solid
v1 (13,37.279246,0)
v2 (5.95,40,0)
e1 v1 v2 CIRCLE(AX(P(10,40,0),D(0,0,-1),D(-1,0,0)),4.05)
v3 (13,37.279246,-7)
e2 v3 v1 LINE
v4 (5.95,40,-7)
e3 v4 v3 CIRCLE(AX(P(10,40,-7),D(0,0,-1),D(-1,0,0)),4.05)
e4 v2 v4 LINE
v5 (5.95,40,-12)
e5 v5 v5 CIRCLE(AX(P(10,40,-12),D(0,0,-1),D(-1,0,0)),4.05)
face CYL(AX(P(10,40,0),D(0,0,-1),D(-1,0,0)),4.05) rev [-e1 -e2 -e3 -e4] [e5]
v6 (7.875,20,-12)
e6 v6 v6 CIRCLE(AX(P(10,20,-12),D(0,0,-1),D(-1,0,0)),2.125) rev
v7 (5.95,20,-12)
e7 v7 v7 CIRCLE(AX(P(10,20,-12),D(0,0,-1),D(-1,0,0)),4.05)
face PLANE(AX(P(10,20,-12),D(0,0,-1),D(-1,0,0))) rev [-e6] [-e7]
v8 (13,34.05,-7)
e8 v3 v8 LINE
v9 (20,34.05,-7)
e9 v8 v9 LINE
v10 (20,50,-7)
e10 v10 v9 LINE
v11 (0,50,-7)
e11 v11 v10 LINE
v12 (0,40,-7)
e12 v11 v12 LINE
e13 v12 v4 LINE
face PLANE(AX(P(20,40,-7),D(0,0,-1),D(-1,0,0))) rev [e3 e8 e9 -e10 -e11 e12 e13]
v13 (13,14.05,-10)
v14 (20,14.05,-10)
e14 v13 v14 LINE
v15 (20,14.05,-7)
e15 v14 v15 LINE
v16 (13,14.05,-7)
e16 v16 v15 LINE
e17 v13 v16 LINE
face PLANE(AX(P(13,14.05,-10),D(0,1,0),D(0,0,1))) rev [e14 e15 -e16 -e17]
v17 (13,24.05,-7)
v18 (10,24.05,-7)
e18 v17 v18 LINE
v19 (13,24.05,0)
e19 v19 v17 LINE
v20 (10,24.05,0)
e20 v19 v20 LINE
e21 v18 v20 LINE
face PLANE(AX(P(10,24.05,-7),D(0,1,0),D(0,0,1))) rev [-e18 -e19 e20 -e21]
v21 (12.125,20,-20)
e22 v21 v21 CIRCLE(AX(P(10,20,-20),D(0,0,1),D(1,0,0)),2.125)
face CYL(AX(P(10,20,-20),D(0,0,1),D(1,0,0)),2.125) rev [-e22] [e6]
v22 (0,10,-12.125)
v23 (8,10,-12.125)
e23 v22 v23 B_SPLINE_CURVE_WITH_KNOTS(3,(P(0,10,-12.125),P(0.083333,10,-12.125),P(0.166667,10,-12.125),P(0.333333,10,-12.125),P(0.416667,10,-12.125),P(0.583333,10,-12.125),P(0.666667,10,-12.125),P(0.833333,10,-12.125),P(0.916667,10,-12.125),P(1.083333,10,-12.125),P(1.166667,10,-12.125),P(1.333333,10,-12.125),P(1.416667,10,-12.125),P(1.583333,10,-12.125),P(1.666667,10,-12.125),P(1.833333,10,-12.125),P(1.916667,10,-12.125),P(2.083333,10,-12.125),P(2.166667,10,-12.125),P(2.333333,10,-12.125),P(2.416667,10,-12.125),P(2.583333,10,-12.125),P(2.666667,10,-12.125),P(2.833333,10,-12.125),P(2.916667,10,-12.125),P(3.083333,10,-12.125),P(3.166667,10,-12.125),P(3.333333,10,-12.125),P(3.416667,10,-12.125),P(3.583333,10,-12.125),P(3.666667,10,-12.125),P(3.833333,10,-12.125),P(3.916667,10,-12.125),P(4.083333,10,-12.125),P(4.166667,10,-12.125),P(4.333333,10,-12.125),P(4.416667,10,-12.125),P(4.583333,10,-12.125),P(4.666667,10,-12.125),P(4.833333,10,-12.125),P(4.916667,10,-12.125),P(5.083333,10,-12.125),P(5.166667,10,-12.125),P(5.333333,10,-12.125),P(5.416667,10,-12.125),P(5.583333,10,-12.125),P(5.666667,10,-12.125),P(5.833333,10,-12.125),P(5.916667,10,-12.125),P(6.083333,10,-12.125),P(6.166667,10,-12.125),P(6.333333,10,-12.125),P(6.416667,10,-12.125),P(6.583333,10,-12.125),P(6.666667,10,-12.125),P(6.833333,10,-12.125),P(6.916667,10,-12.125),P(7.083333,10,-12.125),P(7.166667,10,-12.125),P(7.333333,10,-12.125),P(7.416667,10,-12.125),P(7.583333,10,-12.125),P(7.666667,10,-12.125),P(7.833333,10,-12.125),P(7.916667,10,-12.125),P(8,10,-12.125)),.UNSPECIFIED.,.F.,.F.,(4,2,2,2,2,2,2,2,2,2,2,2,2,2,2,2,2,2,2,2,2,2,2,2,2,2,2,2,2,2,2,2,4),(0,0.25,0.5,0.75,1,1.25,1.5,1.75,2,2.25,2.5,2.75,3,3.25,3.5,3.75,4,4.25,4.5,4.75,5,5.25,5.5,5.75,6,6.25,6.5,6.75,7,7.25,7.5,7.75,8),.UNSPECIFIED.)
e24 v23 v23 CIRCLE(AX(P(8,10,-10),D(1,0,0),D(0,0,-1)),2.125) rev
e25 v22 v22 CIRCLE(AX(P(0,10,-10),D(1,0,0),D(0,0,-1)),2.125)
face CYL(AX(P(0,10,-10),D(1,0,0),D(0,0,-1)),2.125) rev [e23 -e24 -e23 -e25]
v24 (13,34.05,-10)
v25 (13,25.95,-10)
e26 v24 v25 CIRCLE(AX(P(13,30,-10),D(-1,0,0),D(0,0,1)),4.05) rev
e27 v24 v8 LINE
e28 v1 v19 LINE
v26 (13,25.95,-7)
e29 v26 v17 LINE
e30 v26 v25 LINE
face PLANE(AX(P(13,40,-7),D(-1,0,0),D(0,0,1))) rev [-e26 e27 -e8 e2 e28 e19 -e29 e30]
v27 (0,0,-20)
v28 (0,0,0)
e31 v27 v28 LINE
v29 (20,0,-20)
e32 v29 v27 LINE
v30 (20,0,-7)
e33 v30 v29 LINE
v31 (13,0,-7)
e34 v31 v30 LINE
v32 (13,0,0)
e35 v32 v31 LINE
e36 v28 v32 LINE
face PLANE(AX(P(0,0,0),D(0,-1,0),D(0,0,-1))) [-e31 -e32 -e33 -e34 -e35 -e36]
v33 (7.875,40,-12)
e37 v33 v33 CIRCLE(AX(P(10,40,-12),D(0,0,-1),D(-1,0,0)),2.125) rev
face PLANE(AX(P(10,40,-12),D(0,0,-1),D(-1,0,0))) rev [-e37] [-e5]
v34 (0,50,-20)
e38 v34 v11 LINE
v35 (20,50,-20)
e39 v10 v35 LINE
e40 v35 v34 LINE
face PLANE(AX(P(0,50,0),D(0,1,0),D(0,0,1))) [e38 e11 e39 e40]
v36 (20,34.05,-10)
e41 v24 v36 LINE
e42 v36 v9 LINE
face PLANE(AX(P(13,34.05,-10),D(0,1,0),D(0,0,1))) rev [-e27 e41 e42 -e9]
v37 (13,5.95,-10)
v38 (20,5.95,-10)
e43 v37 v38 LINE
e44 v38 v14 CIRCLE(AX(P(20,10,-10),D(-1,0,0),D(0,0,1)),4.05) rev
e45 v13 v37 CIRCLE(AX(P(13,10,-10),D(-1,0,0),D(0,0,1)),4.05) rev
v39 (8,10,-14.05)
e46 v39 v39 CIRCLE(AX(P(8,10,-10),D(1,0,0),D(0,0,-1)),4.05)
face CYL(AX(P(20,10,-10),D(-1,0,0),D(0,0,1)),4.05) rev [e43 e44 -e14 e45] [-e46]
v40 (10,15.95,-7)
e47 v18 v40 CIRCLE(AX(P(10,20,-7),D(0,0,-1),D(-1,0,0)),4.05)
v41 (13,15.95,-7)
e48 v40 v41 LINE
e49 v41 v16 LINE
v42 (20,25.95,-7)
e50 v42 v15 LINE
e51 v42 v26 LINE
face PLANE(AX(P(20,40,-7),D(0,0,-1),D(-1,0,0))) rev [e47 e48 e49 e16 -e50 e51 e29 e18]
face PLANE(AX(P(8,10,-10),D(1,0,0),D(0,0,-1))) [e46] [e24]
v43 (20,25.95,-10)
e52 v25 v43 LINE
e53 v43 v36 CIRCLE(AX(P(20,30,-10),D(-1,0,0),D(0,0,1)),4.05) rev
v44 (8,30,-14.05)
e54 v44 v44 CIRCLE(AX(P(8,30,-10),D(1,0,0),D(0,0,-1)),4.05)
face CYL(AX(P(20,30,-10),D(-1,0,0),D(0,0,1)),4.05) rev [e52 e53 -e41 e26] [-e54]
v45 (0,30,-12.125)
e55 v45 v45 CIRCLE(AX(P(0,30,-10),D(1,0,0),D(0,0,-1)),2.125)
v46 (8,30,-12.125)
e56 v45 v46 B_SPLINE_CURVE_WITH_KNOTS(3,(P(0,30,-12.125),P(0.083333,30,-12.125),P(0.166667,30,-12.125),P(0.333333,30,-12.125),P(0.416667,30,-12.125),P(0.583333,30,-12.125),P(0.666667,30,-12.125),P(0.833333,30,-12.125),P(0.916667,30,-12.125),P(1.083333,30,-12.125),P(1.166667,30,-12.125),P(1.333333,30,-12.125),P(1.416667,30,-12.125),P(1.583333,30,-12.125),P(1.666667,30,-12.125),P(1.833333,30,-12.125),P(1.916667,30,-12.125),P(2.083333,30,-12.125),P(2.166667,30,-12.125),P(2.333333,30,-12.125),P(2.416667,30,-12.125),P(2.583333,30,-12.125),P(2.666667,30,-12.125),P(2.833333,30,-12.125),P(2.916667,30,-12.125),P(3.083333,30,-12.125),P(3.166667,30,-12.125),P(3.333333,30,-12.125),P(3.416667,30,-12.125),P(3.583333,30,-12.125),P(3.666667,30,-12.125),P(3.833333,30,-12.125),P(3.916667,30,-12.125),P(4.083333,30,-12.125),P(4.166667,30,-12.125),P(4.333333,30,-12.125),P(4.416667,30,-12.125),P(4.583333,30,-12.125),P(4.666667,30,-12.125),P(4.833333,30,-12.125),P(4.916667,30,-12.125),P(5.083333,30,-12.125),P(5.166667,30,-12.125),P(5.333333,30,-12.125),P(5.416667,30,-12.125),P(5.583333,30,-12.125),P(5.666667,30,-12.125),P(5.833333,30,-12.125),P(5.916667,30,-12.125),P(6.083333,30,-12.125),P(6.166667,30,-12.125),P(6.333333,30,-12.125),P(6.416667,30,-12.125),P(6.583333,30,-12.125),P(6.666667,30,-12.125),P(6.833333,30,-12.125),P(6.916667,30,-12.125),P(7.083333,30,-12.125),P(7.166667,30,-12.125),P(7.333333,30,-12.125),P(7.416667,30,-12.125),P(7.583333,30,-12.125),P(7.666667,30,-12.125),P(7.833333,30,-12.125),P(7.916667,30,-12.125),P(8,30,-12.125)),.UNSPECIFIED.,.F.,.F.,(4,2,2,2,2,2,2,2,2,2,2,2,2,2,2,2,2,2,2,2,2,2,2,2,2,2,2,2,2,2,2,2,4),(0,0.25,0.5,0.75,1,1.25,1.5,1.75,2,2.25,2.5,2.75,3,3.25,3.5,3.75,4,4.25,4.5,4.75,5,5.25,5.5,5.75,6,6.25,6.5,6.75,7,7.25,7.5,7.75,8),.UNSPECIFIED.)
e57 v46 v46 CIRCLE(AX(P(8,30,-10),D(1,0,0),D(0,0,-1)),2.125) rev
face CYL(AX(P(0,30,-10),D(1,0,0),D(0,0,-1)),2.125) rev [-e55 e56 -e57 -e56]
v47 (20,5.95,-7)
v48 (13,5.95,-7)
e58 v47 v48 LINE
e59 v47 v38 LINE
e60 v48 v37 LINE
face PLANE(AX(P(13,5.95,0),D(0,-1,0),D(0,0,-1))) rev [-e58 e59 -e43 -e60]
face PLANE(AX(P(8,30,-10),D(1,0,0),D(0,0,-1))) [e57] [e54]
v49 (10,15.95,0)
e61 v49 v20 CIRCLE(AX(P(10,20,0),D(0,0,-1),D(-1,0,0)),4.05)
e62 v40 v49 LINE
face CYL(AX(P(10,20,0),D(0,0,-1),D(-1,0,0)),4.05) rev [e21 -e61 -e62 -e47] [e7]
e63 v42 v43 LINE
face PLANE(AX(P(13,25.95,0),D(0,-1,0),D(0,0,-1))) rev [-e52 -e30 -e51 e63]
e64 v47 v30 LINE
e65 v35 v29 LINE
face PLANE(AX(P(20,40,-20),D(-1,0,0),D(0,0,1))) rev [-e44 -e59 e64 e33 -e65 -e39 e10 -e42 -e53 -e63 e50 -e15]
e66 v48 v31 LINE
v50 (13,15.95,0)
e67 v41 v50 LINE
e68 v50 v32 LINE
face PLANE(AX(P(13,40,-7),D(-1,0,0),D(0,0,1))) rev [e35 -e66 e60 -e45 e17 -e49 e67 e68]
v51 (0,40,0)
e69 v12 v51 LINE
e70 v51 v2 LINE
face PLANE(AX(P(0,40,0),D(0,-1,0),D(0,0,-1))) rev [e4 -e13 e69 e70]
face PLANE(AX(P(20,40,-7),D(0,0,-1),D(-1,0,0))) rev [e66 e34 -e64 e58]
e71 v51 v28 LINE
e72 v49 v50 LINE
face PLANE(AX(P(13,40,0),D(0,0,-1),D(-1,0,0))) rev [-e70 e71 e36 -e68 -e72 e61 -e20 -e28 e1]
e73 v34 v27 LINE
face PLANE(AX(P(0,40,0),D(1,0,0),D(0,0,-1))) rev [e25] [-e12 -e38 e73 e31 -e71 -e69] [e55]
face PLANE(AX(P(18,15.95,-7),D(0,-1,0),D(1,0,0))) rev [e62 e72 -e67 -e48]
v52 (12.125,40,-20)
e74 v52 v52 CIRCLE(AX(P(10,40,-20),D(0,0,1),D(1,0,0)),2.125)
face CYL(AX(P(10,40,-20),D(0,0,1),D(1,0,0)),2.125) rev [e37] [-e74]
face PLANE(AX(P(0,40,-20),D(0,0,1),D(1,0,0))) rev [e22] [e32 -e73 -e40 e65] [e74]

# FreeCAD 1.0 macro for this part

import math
import FreeCAD as App
import Part
import Sketcher

V = App.Vector


def add_polygon(sketch, points):
    """Adds a closed chain of lines whose ends are joined by coincident constraints."""
    first, n = sketch.GeometryCount, len(points)
    for a, b in zip(points, points[1:] + points[:1]):
        sketch.addGeometry(Part.LineSegment(App.Vector(*a, 0), App.Vector(*b, 0)), False)
    for i in range(n):
        sketch.addConstraint(Sketcher.Constraint("Coincident", first + i, 2, first + (i + 1) % n, 1))

doc = App.newDocument("Part")
body = doc.addObject("PartDesign::Body", "Body")

sketch1 = body.newObject("Sketcher::SketchObject", "Sketch")
sketch1.AttachmentSupport = (doc.getObject("XZ_Plane"), [""])
sketch1.MapMode = "FlatFace"
add_polygon(sketch1, [(0, -20), (0, 0), (13, 0), (13, -7), (20, -7), (20, -20)])
sketch1.addConstraint(Sketcher.Constraint("Vertical", 0))
sketch1.addConstraint(Sketcher.Constraint("Horizontal", 1))
sketch1.addConstraint(Sketcher.Constraint("Vertical", 2))
sketch1.addConstraint(Sketcher.Constraint("Horizontal", 3))
sketch1.addConstraint(Sketcher.Constraint("Vertical", 4))
sketch1.addConstraint(Sketcher.Constraint("Horizontal", 5))
sketch1.addConstraint(Sketcher.Constraint("Coincident", 0, 2, -1, 1))
sketch1.addConstraint(Sketcher.Constraint("Equal", 5, 0))
sketch1.addConstraint(Sketcher.Constraint("Equal", 3, 2))
sketch1.addConstraint(Sketcher.Constraint("DistanceX", 1, 1, 1, 2, 13.0))
sketch1.addConstraint(Sketcher.Constraint("DistanceX", 3, 1, 3, 2, 7.0))
pad1 = body.newObject("PartDesign::Pad", "Pad")
pad1.Profile = sketch1
pad1.Length = 40
pad1.Reversed = True

sketch2 = body.newObject("Sketcher::SketchObject", "Sketch001")
sketch2.AttachmentSupport = (doc.getObject("XZ_Plane"), [""])
sketch2.MapMode = "FlatFace"
sketch2.AttachmentOffset = App.Placement(V(0, 0, -40), App.Rotation())
add_polygon(sketch2, [(0, -20), (0, -7), (20, -7), (20, -20)])
sketch2.addConstraint(Sketcher.Constraint("Vertical", 0))
sketch2.addConstraint(Sketcher.Constraint("Horizontal", 1))
sketch2.addConstraint(Sketcher.Constraint("Vertical", 2))
sketch2.addConstraint(Sketcher.Constraint("Horizontal", 3))
sketch2.addConstraint(Sketcher.Constraint("PointOnObject", 0, 2, -2))
sketch2.addConstraint(Sketcher.Constraint("DistanceX", 1, 1, 1, 2, 20.0))
sketch2.addConstraint(Sketcher.Constraint("DistanceY", 0, 1, 0, 2, 13.0))
sketch2.addConstraint(Sketcher.Constraint("DistanceY", 0, 2, -1, 1, 7.0))
pad2 = body.newObject("PartDesign::Pad", "Pad001")
pad2.Profile = sketch2
pad2.Length = 10
pad2.Reversed = True

sketch3 = body.newObject("Sketcher::SketchObject", "Sketch002")
sketch3.AttachmentSupport = (doc.getObject("YZ_Plane"), [""])
sketch3.MapMode = "FlatFace"
sketch3.AttachmentOffset = App.Placement(V(0, 0, 13), App.Rotation())
sketch3.addGeometry(Part.Circle(V(30, -10, 0), V(0, 0, 1), 2.1), False)
sketch3.addGeometry(Part.Circle(V(10, -10, 0), V(0, 0, 1), 2.1), False)
sketch3.addConstraint(Sketcher.Constraint("Equal", 0, 1))
sketch3.addConstraint(Sketcher.Constraint("Horizontal", 0, 3, 1, 3))
sketch3.addConstraint(Sketcher.Constraint("Diameter", 0, 4.25))
sketch3.addConstraint(Sketcher.Constraint("DistanceX", -1, 1, 0, 3, 30.0))
sketch3.addConstraint(Sketcher.Constraint("DistanceY", 0, 3, -1, 1, 10.0))
sketch3.addConstraint(Sketcher.Constraint("DistanceX", -1, 1, 1, 3, 10.0))
pocket1 = body.newObject("PartDesign::Pocket", "Pocket")
pocket1.Profile = sketch3
pocket1.Type = "ThroughAll"

sketch4 = body.newObject("Sketcher::SketchObject", "Sketch003")
sketch4.AttachmentSupport = (doc.getObject("YZ_Plane"), [""])
sketch4.MapMode = "FlatFace"
sketch4.AttachmentOffset = App.Placement(V(0, 0, 13), App.Rotation())
sketch4.addGeometry(Part.Circle(V(30, -10, 0), V(0, 0, 1), 4), False)
sketch4.addGeometry(Part.Circle(V(10, -10, 0), V(0, 0, 1), 4), False)
sketch4.addConstraint(Sketcher.Constraint("Equal", 0, 1))
sketch4.addConstraint(Sketcher.Constraint("Horizontal", 0, 3, 1, 3))
sketch4.addConstraint(Sketcher.Constraint("Diameter", 0, 8.1))
sketch4.addConstraint(Sketcher.Constraint("DistanceX", -1, 1, 0, 3, 30.0))
sketch4.addConstraint(Sketcher.Constraint("DistanceY", 0, 3, -1, 1, 10.0))
sketch4.addConstraint(Sketcher.Constraint("DistanceX", -1, 1, 1, 3, 10.0))
pocket2 = body.newObject("PartDesign::Pocket", "Pocket001")
pocket2.Profile = sketch4
pocket2.Type = "TwoLengths"
pocket2.Length = 56.398556
pocket2.Length2 = 5
pocket2.Reversed = True

sketch5 = body.newObject("Sketcher::SketchObject", "Sketch004")
sketch5.AttachmentSupport = (doc.getObject("XY_Plane"), [""])
sketch5.MapMode = "FlatFace"
sketch5.AttachmentOffset = App.Placement(V(0, 0, -7), App.Rotation())
sketch5.addGeometry(Part.Circle(V(10, 20, 0), V(0, 0, 1), 2.1), False)
sketch5.addConstraint(Sketcher.Constraint("Diameter", 0, 4.25))
sketch5.addConstraint(Sketcher.Constraint("DistanceX", -1, 1, 0, 3, 10.0))
sketch5.addConstraint(Sketcher.Constraint("DistanceY", -1, 1, 0, 3, 20.0))
pocket3 = body.newObject("PartDesign::Pocket", "Pocket002")
pocket3.Profile = sketch5
pocket3.Type = "ThroughAll"
pocket3.Midplane = True

sketch6 = body.newObject("Sketcher::SketchObject", "Sketch005")
sketch6.AttachmentSupport = (doc.getObject("XY_Plane"), [""])
sketch6.MapMode = "FlatFace"
sketch6.AttachmentOffset = App.Placement(V(0, 0, -7), App.Rotation())
sketch6.addGeometry(Part.Circle(V(10, 20, 0), V(0, 0, 1), 4), False)
sketch6.addConstraint(Sketcher.Constraint("Diameter", 0, 8.1))
sketch6.addConstraint(Sketcher.Constraint("DistanceX", -1, 1, 0, 3, 10.0))
sketch6.addConstraint(Sketcher.Constraint("DistanceY", -1, 1, 0, 3, 20.0))
pocket4 = body.newObject("PartDesign::Pocket", "Pocket003")
pocket4.Profile = sketch6
pocket4.Type = "TwoLengths"
pocket4.Length = 58.445626
pocket4.Length2 = 5
pocket4.Reversed = True

sketch7 = body.newObject("Sketcher::SketchObject", "Sketch006")
sketch7.AttachmentSupport = (doc.getObject("XY_Plane"), [""])
sketch7.MapMode = "FlatFace"
sketch7.AttachmentOffset = App.Placement(V(0, 0, -7), App.Rotation())
sketch7.addGeometry(Part.LineSegment(V(18, 24.1, 0), V(10, 24.1, 0)), False)
sketch7.addGeometry(Part.ArcOfCircle(Part.Circle(V(10, 20, 0), V(0, 0, 1), 4), math.radians(-90), math.radians(90)), False)
sketch7.addGeometry(Part.LineSegment(V(10, 15.9, 0), V(18, 15.9, 0)), False)
sketch7.addGeometry(Part.LineSegment(V(18, 15.9, 0), V(18, 24.1, 0)), False)
sketch7.addConstraint(Sketcher.Constraint("Tangent", 0, 2, 1, 2))
sketch7.addConstraint(Sketcher.Constraint("Tangent", 1, 1, 2, 1))
sketch7.addConstraint(Sketcher.Constraint("Coincident", 2, 2, 3, 1))
sketch7.addConstraint(Sketcher.Constraint("Coincident", 3, 2, 0, 1))
sketch7.addConstraint(Sketcher.Constraint("Horizontal", 0))
sketch7.addConstraint(Sketcher.Constraint("Horizontal", 2))
sketch7.addConstraint(Sketcher.Constraint("Vertical", 3))
sketch7.addConstraint(Sketcher.Constraint("DistanceX", 0, 2, 0, 1, 8.0))
sketch7.addConstraint(Sketcher.Constraint("Radius", 1, 4.05))
sketch7.addConstraint(Sketcher.Constraint("DistanceX", -1, 1, 1, 3, 10.0))
sketch7.addConstraint(Sketcher.Constraint("DistanceY", -1, 1, 1, 3, 20.0))
pocket5 = body.newObject("PartDesign::Pocket", "Pocket004")
pocket5.Profile = sketch7
pocket5.Length = 7
pocket5.Reversed = True

sketch8 = body.newObject("Sketcher::SketchObject", "Sketch007")
sketch8.AttachmentSupport = (doc.getObject("YZ_Plane"), [""])
sketch8.MapMode = "FlatFace"
sketch8.AttachmentOffset = App.Placement(V(0, 0, 20), App.Rotation())
sketch8.addGeometry(Part.LineSegment(V(34, -10, 0), V(34, 0, 0)), False)
sketch8.addGeometry(Part.LineSegment(V(34, 0, 0), V(25.9, 0, 0)), False)
sketch8.addGeometry(Part.LineSegment(V(25.9, 0, 0), V(25.9, -10, 0)), False)
sketch8.addGeometry(Part.ArcOfCircle(Part.Circle(V(30, -10, 0), V(0, 0, 1), 4), math.radians(0), math.radians(180)), False)
sketch8.addGeometry(Part.LineSegment(V(14.1, -10, 0), V(14.1, 0, 0)), False)
sketch8.addGeometry(Part.LineSegment(V(14.1, 0, 0), V(6, 0, 0)), False)
sketch8.addGeometry(Part.LineSegment(V(6, 0, 0), V(6, -10, 0)), False)
sketch8.addGeometry(Part.ArcOfCircle(Part.Circle(V(10, -10, 0), V(0, 0, 1), 4), math.radians(0), math.radians(180)), False)
sketch8.addConstraint(Sketcher.Constraint("Coincident", 0, 2, 1, 1))
sketch8.addConstraint(Sketcher.Constraint("Coincident", 1, 2, 2, 1))
sketch8.addConstraint(Sketcher.Constraint("Tangent", 2, 2, 3, 2))
sketch8.addConstraint(Sketcher.Constraint("Tangent", 3, 1, 0, 1))
sketch8.addConstraint(Sketcher.Constraint("Coincident", 4, 2, 5, 1))
sketch8.addConstraint(Sketcher.Constraint("Coincident", 5, 2, 6, 1))
sketch8.addConstraint(Sketcher.Constraint("Tangent", 6, 2, 7, 2))
sketch8.addConstraint(Sketcher.Constraint("Tangent", 7, 1, 4, 1))
sketch8.addConstraint(Sketcher.Constraint("Vertical", 0))
sketch8.addConstraint(Sketcher.Constraint("Horizontal", 1))
sketch8.addConstraint(Sketcher.Constraint("Vertical", 2))
sketch8.addConstraint(Sketcher.Constraint("Vertical", 4))
sketch8.addConstraint(Sketcher.Constraint("Horizontal", 5))
sketch8.addConstraint(Sketcher.Constraint("Vertical", 6))
sketch8.addConstraint(Sketcher.Constraint("Equal", 3, 7))
sketch8.addConstraint(Sketcher.Constraint("PointOnObject", 0, 2, -1))
sketch8.addConstraint(Sketcher.Constraint("PointOnObject", 4, 2, -1))
sketch8.addConstraint(Sketcher.Constraint("Horizontal", 3, 3, 7, 3))
sketch8.addConstraint(Sketcher.Constraint("DistanceY", 0, 1, 0, 2, 10.0))
sketch8.addConstraint(Sketcher.Constraint("Radius", 3, 4.05))
sketch8.addConstraint(Sketcher.Constraint("DistanceX", -1, 1, 3, 3, 30.0))
sketch8.addConstraint(Sketcher.Constraint("DistanceX", -1, 1, 7, 3, 10.0))
pocket6 = body.newObject("PartDesign::Pocket", "Pocket005")
pocket6.Profile = sketch8
pocket6.Length = 7

sketch9 = body.newObject("Sketcher::SketchObject", "Sketch008")
sketch9.AttachmentSupport = (doc.getObject("XY_Plane"), [""])
sketch9.MapMode = "FlatFace"
sketch9.addGeometry(Part.Circle(V(10, 40, 0), V(0, 0, 1), 2.1), False)
sketch9.addConstraint(Sketcher.Constraint("Diameter", 0, 4.25))
sketch9.addConstraint(Sketcher.Constraint("DistanceX", -1, 1, 0, 3, 10.0))
sketch9.addConstraint(Sketcher.Constraint("DistanceY", -1, 1, 0, 3, 40.0))
pocket7 = body.newObject("PartDesign::Pocket", "Pocket006")
pocket7.Profile = sketch9
pocket7.Type = "ThroughAll"

sketch10 = body.newObject("Sketcher::SketchObject", "Sketch009")
sketch10.AttachmentSupport = (doc.getObject("XY_Plane"), [""])
sketch10.MapMode = "FlatFace"
sketch10.AttachmentOffset = App.Placement(V(0, 0, -7), App.Rotation())
sketch10.addGeometry(Part.Circle(V(10, 40, 0), V(0, 0, 1), 4), False)
sketch10.addConstraint(Sketcher.Constraint("Diameter", 0, 8.1))
sketch10.addConstraint(Sketcher.Constraint("DistanceX", -1, 1, 0, 3, 10.0))
sketch10.addConstraint(Sketcher.Constraint("DistanceY", -1, 1, 0, 3, 40.0))
pocket8 = body.newObject("PartDesign::Pocket", "Pocket007")
pocket8.Profile = sketch10
pocket8.Type = "TwoLengths"
pocket8.Length = 58.445626
pocket8.Length2 = 5
pocket8.Reversed = True

doc.recompute()
